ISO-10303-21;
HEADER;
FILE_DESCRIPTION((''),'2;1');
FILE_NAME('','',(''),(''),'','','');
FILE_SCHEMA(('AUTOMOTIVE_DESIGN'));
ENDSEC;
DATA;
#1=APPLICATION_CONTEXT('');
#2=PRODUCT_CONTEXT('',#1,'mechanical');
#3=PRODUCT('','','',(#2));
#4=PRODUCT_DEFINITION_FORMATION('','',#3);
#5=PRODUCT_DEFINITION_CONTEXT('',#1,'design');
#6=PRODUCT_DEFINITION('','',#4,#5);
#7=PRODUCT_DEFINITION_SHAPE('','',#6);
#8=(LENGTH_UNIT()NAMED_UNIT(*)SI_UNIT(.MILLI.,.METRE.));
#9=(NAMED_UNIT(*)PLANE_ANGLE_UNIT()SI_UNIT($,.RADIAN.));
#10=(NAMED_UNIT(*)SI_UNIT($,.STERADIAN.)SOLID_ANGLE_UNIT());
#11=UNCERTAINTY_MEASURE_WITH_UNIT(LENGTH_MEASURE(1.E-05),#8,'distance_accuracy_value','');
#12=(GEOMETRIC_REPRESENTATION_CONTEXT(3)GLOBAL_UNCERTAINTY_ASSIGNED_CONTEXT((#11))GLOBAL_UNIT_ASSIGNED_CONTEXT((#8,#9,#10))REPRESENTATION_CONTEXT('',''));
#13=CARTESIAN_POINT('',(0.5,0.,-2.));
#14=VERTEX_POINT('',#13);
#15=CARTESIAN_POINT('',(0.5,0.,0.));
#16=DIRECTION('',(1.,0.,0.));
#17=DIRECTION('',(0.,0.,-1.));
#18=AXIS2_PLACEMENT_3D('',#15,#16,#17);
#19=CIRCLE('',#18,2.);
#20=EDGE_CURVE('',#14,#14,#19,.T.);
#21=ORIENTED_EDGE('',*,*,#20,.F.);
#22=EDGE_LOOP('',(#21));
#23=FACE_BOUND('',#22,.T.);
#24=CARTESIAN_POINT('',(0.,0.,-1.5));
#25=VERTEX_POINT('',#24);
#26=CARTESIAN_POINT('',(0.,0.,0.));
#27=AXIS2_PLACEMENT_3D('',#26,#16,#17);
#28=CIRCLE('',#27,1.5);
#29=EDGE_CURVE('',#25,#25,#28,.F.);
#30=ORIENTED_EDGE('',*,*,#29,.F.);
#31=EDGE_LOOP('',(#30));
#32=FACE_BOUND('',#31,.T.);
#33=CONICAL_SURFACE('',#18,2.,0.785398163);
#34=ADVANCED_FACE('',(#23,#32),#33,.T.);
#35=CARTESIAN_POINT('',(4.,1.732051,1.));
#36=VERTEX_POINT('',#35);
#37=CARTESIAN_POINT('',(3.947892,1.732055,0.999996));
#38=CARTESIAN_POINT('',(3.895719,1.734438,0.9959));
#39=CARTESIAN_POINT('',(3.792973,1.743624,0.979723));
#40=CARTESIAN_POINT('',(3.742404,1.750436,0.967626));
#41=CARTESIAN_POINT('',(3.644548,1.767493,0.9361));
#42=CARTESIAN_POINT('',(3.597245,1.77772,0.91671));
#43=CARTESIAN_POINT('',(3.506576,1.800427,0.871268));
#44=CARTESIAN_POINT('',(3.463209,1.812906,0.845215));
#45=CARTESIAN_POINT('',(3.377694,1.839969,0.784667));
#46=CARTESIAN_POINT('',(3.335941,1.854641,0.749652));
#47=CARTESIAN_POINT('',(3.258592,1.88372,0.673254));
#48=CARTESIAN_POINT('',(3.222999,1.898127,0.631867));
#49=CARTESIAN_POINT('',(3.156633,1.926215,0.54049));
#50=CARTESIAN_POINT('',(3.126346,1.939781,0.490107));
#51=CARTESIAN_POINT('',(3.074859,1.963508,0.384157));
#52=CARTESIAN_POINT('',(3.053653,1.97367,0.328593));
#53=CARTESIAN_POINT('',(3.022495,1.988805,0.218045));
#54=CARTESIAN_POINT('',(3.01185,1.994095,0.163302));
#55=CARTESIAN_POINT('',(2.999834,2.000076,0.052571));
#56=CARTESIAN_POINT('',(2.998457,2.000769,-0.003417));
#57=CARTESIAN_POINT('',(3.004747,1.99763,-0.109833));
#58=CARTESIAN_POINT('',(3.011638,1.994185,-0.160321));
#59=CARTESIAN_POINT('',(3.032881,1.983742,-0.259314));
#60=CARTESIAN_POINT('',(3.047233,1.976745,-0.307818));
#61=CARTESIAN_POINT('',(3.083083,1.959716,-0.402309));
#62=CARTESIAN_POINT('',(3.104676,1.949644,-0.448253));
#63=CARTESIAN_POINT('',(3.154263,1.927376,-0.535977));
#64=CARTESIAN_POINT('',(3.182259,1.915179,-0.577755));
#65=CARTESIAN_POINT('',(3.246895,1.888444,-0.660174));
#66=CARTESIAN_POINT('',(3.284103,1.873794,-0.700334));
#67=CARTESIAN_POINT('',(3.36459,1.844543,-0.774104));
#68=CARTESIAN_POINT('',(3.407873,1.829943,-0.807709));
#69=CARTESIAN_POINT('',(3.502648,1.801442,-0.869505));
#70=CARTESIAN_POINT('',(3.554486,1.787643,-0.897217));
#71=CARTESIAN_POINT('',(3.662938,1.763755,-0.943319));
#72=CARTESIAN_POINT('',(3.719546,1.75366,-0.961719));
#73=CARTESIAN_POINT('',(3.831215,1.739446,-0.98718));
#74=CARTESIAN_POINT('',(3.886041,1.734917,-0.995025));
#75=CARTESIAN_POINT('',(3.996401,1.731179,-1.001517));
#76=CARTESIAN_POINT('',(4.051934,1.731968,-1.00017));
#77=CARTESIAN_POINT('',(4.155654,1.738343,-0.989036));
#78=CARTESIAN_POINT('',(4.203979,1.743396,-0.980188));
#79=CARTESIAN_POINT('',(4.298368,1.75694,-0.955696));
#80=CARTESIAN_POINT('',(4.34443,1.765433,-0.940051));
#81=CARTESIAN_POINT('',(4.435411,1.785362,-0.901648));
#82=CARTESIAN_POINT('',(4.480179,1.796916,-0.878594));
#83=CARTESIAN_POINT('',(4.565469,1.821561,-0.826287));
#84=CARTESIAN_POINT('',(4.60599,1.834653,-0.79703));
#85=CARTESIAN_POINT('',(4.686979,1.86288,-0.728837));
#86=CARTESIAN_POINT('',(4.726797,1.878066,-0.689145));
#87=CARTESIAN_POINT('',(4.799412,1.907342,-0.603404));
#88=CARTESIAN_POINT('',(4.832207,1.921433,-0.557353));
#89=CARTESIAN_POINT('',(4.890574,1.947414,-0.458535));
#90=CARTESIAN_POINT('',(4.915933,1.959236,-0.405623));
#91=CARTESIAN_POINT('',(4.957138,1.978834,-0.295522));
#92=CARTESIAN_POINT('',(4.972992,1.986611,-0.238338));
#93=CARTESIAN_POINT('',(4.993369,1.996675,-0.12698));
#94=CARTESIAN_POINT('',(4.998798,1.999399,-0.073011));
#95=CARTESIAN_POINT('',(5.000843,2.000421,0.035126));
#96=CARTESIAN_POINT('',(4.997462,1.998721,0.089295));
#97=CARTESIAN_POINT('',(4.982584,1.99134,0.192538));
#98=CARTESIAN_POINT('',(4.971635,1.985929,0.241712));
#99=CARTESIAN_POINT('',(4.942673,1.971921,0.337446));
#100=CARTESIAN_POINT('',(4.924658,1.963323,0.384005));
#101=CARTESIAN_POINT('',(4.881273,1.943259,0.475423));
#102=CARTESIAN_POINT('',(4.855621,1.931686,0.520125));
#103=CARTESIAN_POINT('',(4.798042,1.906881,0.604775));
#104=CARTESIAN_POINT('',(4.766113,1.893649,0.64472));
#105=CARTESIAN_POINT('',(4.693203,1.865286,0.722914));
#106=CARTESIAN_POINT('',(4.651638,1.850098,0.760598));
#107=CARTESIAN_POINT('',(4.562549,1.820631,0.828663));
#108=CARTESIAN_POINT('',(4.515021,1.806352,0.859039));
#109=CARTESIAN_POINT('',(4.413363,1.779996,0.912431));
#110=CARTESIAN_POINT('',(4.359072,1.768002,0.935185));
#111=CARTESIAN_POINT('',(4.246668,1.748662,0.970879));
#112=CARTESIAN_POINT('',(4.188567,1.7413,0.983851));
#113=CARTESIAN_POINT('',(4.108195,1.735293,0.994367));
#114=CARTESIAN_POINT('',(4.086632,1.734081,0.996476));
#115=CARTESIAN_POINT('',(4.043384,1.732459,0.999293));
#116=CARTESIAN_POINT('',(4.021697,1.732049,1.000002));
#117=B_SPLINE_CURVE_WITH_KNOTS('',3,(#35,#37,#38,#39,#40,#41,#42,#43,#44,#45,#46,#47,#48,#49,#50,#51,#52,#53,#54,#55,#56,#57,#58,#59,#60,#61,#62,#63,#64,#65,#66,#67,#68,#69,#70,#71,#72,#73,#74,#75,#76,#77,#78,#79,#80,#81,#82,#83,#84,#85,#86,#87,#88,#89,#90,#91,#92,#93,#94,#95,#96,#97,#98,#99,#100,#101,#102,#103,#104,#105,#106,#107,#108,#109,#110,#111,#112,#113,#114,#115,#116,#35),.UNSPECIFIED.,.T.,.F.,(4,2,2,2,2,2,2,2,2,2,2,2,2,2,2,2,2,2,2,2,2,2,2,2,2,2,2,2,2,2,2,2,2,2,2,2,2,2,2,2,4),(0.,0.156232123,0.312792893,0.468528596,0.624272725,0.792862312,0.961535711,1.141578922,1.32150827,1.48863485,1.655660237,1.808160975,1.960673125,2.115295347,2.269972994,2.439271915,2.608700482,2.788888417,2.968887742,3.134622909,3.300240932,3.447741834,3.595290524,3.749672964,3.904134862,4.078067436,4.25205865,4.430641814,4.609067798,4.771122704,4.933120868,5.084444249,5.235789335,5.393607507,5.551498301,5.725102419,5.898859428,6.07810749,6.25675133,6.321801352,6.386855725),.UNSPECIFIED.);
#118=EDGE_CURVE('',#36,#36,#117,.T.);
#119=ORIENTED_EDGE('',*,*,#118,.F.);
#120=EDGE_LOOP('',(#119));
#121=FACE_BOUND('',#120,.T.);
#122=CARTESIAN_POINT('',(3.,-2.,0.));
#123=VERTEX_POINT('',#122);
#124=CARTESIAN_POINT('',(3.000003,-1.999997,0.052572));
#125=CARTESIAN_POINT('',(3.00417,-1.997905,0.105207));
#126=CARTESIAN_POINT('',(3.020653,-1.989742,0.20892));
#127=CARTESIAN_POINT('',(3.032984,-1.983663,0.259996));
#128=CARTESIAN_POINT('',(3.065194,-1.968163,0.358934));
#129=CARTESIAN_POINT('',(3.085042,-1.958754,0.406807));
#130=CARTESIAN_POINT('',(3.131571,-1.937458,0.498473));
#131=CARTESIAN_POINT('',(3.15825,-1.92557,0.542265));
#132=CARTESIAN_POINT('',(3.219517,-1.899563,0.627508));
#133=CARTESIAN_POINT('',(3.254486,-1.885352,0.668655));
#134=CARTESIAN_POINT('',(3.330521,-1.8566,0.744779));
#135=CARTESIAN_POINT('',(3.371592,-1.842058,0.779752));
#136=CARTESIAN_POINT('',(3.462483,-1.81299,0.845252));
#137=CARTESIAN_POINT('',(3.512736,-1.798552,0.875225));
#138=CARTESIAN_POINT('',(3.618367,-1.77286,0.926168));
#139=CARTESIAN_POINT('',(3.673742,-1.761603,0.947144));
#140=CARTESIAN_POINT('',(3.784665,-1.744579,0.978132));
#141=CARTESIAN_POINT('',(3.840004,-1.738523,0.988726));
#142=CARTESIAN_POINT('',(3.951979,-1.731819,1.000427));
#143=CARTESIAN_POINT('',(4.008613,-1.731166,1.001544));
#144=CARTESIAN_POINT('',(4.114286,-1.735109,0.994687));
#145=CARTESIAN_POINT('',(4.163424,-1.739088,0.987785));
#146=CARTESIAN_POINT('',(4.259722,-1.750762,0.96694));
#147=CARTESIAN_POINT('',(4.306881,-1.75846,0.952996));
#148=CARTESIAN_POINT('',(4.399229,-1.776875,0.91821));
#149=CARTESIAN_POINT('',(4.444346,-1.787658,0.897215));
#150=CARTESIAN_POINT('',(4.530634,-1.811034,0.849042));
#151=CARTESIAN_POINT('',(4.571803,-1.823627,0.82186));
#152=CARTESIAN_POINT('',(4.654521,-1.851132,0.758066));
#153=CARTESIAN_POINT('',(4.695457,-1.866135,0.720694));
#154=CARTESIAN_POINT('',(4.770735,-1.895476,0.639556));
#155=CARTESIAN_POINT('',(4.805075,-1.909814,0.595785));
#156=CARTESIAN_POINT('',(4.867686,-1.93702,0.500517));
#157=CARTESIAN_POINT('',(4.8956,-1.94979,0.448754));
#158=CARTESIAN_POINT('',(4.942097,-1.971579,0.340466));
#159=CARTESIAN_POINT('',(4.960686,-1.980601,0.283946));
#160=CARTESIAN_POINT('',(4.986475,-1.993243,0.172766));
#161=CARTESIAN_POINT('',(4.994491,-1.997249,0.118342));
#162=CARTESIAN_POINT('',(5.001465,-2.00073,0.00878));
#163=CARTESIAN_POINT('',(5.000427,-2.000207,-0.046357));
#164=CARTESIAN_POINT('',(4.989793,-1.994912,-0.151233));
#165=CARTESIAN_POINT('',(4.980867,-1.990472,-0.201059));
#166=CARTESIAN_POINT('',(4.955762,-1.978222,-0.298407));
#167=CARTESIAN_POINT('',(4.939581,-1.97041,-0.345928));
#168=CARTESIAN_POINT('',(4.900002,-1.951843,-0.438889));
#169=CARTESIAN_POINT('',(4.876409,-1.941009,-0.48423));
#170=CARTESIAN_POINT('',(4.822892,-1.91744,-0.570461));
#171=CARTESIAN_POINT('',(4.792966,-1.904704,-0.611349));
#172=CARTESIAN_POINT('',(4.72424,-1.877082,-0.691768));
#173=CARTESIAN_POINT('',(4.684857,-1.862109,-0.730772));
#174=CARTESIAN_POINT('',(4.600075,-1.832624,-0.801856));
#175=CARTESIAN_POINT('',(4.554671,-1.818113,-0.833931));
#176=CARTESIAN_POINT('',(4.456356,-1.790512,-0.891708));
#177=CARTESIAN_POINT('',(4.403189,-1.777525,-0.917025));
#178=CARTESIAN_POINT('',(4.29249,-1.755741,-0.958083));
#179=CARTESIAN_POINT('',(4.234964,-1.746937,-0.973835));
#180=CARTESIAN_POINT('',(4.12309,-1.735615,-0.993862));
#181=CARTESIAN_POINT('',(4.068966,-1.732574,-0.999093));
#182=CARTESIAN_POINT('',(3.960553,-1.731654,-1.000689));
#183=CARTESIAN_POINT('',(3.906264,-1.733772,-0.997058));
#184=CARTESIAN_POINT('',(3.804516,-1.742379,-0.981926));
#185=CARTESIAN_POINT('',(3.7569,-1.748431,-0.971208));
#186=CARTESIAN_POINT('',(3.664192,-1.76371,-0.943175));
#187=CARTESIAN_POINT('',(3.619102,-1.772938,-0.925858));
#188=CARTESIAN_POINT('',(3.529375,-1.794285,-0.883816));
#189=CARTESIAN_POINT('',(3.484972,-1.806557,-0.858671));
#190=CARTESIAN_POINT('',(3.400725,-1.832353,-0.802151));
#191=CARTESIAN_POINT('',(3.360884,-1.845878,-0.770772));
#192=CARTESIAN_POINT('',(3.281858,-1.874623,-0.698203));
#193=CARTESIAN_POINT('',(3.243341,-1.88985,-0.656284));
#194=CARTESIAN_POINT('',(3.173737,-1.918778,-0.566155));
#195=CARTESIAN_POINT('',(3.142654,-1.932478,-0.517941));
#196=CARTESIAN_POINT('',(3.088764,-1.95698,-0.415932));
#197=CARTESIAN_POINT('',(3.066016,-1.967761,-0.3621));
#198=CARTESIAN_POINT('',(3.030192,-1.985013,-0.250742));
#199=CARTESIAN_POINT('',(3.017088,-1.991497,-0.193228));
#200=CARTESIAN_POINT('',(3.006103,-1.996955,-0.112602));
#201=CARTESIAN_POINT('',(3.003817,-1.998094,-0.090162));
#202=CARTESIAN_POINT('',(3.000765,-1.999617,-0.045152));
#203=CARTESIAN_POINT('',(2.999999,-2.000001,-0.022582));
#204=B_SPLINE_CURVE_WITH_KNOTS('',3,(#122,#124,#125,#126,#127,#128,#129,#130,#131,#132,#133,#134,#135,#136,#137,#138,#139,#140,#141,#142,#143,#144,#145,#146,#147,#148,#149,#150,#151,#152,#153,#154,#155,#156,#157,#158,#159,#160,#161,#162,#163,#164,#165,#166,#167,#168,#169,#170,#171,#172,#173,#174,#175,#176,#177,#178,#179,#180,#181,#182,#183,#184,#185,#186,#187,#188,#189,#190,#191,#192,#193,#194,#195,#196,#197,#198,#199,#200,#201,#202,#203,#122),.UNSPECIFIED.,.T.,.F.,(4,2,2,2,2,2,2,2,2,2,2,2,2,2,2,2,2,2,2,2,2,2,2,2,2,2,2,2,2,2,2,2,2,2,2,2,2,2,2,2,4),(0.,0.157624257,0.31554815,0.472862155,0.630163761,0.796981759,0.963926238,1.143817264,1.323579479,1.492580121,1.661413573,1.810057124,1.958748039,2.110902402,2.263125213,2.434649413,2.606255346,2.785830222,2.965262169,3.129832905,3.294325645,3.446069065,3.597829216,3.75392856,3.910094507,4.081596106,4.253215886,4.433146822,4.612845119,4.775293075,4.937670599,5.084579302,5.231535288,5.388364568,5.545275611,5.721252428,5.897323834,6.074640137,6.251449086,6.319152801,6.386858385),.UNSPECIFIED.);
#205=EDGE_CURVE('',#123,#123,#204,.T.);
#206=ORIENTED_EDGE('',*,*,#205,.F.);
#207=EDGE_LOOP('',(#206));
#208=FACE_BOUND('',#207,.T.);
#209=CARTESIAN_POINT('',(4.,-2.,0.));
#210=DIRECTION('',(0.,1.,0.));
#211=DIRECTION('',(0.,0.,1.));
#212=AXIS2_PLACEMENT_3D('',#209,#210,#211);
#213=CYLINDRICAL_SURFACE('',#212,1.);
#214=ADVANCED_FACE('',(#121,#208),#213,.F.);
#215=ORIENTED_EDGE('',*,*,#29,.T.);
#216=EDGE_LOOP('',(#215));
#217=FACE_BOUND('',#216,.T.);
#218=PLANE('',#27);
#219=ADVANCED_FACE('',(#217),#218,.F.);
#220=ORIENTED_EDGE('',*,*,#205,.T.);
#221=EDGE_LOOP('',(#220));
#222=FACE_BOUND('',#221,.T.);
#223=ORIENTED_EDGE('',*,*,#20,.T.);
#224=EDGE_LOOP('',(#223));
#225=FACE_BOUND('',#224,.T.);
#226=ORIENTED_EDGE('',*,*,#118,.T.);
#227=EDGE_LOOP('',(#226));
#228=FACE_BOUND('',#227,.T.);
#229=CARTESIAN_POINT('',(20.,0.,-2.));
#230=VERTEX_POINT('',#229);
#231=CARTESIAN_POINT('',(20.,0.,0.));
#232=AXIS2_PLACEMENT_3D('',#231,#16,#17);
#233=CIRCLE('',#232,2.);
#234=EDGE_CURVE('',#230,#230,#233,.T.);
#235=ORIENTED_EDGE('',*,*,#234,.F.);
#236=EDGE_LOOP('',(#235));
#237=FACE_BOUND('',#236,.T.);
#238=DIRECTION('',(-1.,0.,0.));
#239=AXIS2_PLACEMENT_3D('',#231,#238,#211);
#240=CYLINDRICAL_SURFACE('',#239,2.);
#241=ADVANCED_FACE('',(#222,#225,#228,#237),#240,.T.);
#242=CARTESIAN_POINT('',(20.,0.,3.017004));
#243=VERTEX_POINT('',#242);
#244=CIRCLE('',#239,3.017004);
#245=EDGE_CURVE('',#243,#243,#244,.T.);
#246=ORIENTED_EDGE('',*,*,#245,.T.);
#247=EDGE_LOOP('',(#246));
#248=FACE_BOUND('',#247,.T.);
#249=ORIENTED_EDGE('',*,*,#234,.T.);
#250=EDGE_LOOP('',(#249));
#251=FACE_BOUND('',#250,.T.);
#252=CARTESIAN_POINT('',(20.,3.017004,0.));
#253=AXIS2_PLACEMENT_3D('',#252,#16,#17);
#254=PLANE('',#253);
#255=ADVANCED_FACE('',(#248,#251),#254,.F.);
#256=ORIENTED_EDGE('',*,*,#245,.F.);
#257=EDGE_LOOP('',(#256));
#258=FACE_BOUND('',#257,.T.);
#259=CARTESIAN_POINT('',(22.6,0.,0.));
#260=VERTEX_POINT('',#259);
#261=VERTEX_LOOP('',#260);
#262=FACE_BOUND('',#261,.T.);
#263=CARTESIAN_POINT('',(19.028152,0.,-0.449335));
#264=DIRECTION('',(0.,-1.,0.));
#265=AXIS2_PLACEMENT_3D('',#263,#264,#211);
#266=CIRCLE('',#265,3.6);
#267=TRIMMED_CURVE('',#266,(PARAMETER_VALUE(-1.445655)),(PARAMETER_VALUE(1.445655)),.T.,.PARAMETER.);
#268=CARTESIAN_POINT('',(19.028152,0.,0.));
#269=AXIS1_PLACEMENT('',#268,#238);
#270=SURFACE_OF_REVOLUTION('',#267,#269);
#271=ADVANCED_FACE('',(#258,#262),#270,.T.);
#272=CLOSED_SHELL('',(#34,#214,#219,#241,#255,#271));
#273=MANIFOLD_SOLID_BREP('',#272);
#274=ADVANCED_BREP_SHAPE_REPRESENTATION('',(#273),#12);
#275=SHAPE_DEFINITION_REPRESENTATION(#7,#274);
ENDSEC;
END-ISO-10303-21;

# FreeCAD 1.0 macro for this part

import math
import FreeCAD as App
import Part
import Sketcher
from FreeCAD import Vector
Q = App.Units.Quantity


def edges_at(feature, points):
    """Names of the edges that pass closest to the given points."""
    edges = feature.Shape.Edges
    near = lambda p: min(range(len(edges)), key=lambda i: edges[i].distToShape(Part.Vertex(*p))[0])
    return sorted({f"Edge{near(p) + 1}" for p in points})

doc = App.newDocument("Part")
body = doc.addObject("PartDesign::Body", "Body")

# Sketch on YZ plane
sketch1 = doc.addObject("Sketcher::SketchObject", "Sketch")
body.addObject(sketch1)
sketch1.AttachmentSupport = (doc.YZ_Plane, [""])
sketch1.MapMode = "FlatFace"
sketch1.addGeometry(Part.Circle(Vector(0, 0, 0), Vector(0, 0, 1), 2), False)
sketch1.addConstraint(Sketcher.Constraint("Coincident", 0, 3, -1, 1))
sketch1.addConstraint(Sketcher.Constraint("Diameter", 0, Q("4 mm")))
pad1 = doc.addObject("PartDesign::Pad", "Pad")
body.addObject(pad1)
pad1.Profile = sketch1
pad1.Length = 20
doc.recompute()

chamfer = doc.addObject("PartDesign::Chamfer", "Chamfer")
body.addObject(chamfer)
chamfer.Base = (pad1, edges_at(pad1, [(0, 0, 2)]))
chamfer.Size = 0.5

# Sketch on XZ plane
sketch2 = doc.addObject("Sketcher::SketchObject", "Sketch001")
body.addObject(sketch2)
sketch2.AttachmentSupport = (doc.XZ_Plane, [""])
sketch2.MapMode = "FlatFace"
sketch2.addGeometry(Part.Circle(Vector(4, 0, 0), Vector(0, 0, 1), 1), False)
sketch2.addConstraint(Sketcher.Constraint("PointOnObject", 0, 3, -1))
sketch2.addConstraint(Sketcher.Constraint("Diameter", 0, Q("2 mm")))
sketch2.addConstraint(Sketcher.Constraint("DistanceX", -1, 1, 0, 3, Q("4 mm")))
pocket1 = doc.addObject("PartDesign::Pocket", "Pocket")
body.addObject(pocket1)
pocket1.Profile = sketch2
pocket1.Type = "ThroughAll"
pocket1.Midplane = True

# Sketch on XY plane
sketch3 = doc.addObject("Sketcher::SketchObject", "Sketch002")
body.addObject(sketch3)
sketch3.AttachmentSupport = (doc.XY_Plane, [""])
sketch3.MapMode = "FlatFace"
sketch3.addGeometry(Part.LineSegment(Vector(20, 3, 0), Vector(20, 0, 0)), False)
sketch3.addGeometry(Part.LineSegment(Vector(20, 0, 0), Vector(22.6, 0, 0)), False)
sketch3.addGeometry(Part.ArcOfCircle(Part.Circle(Vector(19, -0.4, 0), Vector(0, 0, 1), 3.6), math.radians(7), math.radians(74)), False)
sketch3.addConstraint(Sketcher.Constraint("Coincident", 0, 2, 1, 1))
sketch3.addConstraint(Sketcher.Constraint("Coincident", 1, 2, 2, 1))
sketch3.addConstraint(Sketcher.Constraint("Coincident", 2, 2, 0, 1))
sketch3.addConstraint(Sketcher.Constraint("Vertical", 0))
sketch3.addConstraint(Sketcher.Constraint("Horizontal", 1))
sketch3.addConstraint(Sketcher.Constraint("PointOnObject", 0, 2, -1))
sketch3.addConstraint(Sketcher.Constraint("Radius", 2, Q("3.6 mm")))
sketch3.addConstraint(Sketcher.Constraint("DistanceX", 1, 1, 1, 2, Q("2.6 mm")))
sketch3.addConstraint(Sketcher.Constraint("DistanceX", -1, 1, 0, 2, Q("20 mm")))
sketch3.addConstraint(Sketcher.Constraint("DistanceY", 0, 2, 0, 1, Q("3.017004 mm")))
revolution = doc.addObject("PartDesign::Revolution", "Revolution")
body.addObject(revolution)
revolution.Profile = sketch3
revolution.ReferenceAxis = (sketch3, ["H_Axis"])
revolution.Angle = 360

doc.recompute()
